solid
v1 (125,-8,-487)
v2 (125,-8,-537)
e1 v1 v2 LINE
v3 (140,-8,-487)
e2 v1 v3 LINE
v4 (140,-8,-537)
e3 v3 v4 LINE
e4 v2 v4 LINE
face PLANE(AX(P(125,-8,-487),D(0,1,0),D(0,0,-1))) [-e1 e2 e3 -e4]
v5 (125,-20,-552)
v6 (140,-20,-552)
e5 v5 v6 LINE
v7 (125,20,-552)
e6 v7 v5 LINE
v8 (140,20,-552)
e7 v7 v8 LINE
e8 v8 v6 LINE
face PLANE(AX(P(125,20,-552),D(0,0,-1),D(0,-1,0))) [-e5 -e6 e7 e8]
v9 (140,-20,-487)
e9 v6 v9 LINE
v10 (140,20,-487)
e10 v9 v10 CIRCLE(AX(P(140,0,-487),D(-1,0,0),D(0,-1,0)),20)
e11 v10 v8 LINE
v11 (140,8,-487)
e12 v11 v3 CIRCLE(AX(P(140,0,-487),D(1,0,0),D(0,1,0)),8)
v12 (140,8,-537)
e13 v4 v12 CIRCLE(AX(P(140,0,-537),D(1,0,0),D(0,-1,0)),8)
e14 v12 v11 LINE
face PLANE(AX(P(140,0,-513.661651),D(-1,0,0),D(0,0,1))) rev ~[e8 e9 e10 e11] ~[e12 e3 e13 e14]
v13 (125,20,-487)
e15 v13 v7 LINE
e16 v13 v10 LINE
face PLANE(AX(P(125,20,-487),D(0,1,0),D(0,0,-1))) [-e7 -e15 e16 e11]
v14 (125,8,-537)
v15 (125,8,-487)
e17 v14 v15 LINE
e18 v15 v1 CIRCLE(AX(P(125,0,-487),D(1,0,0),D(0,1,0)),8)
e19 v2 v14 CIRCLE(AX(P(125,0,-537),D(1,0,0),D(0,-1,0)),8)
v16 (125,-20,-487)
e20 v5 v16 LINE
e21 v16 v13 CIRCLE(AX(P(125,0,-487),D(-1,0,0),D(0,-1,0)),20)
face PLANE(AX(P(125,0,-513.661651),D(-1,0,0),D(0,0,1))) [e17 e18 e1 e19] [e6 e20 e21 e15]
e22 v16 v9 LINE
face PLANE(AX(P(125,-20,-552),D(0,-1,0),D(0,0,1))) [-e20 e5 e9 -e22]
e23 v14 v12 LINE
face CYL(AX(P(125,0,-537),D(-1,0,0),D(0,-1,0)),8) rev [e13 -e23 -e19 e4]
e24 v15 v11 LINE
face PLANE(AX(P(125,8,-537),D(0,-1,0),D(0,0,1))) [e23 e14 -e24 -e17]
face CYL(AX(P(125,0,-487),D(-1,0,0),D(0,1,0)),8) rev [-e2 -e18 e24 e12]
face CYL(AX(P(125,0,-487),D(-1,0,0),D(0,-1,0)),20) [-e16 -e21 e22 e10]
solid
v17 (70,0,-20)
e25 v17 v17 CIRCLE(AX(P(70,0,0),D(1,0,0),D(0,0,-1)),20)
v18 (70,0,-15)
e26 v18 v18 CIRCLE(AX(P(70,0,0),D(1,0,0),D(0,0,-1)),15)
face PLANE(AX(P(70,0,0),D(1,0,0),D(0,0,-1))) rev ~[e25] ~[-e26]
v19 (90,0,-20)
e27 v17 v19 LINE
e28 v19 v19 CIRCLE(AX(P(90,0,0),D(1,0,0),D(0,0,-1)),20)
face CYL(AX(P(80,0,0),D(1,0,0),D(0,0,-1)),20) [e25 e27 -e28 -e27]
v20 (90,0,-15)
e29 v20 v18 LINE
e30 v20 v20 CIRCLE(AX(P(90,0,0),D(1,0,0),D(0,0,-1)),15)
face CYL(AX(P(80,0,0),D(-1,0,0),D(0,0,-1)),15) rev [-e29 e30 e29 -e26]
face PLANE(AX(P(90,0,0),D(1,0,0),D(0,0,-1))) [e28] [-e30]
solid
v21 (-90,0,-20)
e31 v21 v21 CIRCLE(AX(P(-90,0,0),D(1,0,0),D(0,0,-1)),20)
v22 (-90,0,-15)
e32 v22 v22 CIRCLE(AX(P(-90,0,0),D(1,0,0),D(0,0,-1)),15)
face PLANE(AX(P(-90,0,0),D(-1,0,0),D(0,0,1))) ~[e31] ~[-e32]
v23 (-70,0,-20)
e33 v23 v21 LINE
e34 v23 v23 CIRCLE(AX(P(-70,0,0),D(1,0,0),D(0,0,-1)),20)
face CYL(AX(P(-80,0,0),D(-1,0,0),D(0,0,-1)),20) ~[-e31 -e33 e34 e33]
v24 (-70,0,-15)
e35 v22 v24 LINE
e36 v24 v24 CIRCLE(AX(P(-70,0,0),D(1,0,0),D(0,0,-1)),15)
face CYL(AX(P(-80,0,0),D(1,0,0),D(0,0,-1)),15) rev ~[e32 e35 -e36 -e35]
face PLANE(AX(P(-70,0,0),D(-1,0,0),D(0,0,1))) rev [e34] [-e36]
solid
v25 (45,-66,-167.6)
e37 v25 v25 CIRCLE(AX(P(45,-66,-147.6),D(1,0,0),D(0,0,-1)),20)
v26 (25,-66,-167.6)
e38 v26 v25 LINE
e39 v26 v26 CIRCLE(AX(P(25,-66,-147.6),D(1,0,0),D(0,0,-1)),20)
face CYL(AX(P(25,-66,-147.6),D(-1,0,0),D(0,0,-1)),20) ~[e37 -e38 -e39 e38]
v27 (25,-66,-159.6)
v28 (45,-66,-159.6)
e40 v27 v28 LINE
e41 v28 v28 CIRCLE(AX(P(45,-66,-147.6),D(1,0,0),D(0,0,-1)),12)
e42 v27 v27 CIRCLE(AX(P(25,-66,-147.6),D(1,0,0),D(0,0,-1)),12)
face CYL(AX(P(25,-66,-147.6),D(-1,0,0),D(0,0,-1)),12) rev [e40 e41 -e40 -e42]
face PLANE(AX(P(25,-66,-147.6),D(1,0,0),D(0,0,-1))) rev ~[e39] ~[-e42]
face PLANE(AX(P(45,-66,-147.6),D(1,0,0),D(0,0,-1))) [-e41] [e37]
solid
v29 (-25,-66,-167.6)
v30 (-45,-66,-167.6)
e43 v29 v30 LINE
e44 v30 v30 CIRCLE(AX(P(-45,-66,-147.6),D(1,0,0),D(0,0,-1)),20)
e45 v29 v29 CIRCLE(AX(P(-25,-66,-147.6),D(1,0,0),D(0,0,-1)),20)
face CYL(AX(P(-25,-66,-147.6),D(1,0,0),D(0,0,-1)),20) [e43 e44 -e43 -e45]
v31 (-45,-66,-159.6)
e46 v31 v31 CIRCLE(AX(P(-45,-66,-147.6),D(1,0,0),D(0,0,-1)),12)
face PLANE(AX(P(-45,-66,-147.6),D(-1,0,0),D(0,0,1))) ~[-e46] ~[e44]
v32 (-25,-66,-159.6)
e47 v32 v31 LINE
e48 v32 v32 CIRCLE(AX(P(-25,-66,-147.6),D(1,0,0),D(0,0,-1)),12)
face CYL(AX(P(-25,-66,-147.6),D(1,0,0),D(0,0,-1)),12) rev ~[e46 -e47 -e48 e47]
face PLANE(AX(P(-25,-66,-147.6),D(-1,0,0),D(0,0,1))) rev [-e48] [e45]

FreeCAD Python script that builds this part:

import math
import FreeCAD as App
import Part
import Sketcher
from FreeCAD import Vector

doc = App.newDocument("Part")
body = doc.addObject("PartDesign::Body", "Body")

# Sketch on YZ plane
sketch1 = body.newObject("Sketcher::SketchObject", "Sketch")
sketch1.AttachmentSupport = (doc.getObject("YZ_Plane"), [""])
sketch1.MapMode = "FlatFace"
sketch1.AttachmentOffset = App.Placement(Vector(0, 0, 80), App.Rotation())
sketch1.addGeometry(Part.Circle(Vector(0, 0, 0), Vector(0, 0, 1), 20), False)
sketch1.addGeometry(Part.Circle(Vector(0, 0, 0), Vector(0, 0, 1), 15), False)
sketch1.addConstraint(Sketcher.Constraint("Coincident", 0, 3, -1, 1))
sketch1.addConstraint(Sketcher.Constraint("Coincident", 1, 3, -1, 1))
sketch1.addConstraint(Sketcher.Constraint("Diameter", 0, 40.0))
sketch1.addConstraint(Sketcher.Constraint("Diameter", 1, 30.0))
pad1 = body.newObject("PartDesign::Pad", "Pad")
pad1.Profile = sketch1
pad1.Length = 20
pad1.Midplane = True
body2 = doc.addObject("PartDesign::Body", "Body001")

# Sketch on YZ plane
sketch2 = body2.newObject("Sketcher::SketchObject", "Sketch001")
sketch2.AttachmentSupport = (doc.getObject("YZ_Plane001"), [""])
sketch2.MapMode = "FlatFace"
sketch2.AttachmentOffset = App.Placement(Vector(0, 0, 25), App.Rotation())
sketch2.addGeometry(Part.Circle(Vector(-66, -148, 0), Vector(0, 0, 1), 20), False)
sketch2.addGeometry(Part.Circle(Vector(-66, -148, 0), Vector(0, 0, 1), 12), False)
sketch2.addConstraint(Sketcher.Constraint("Coincident", 1, 3, 0, 3))
sketch2.addConstraint(Sketcher.Constraint("Diameter", 0, 40.0))
sketch2.addConstraint(Sketcher.Constraint("Diameter", 1, 24.0))
sketch2.addConstraint(Sketcher.Constraint("DistanceX", 0, 3, -1, 1, 66.0))
sketch2.addConstraint(Sketcher.Constraint("DistanceY", 0, 3, -1, 1, 147.6))
pad2 = body2.newObject("PartDesign::Pad", "Pad001")
pad2.Profile = sketch2
pad2.Length = 20
body3 = doc.addObject("PartDesign::Body", "Body002")

# Sketch on YZ plane
sketch3 = body3.newObject("Sketcher::SketchObject", "Sketch002")
sketch3.AttachmentSupport = (doc.getObject("YZ_Plane002"), [""])
sketch3.MapMode = "FlatFace"
sketch3.AttachmentOffset = App.Placement(Vector(0, 0, 125), App.Rotation())
sketch3.addGeometry(Part.LineSegment(Vector(20, -552, 0), Vector(20, -487, 0)), False)
sketch3.addGeometry(Part.ArcOfCircle(Part.Circle(Vector(0, -487, 0), Vector(0, 0, 1), 20), math.radians(0), math.radians(180)), False)
sketch3.addGeometry(Part.LineSegment(Vector(-20, -487, 0), Vector(-20, -552, 0)), False)
sketch3.addGeometry(Part.LineSegment(Vector(-20, -552, 0), Vector(20, -552, 0)), False)
sketch3.addGeometry(Part.ArcOfCircle(Part.Circle(Vector(0, -537, 0), Vector(0, 0, 1), 8), math.radians(180), math.radians(360)), False)
sketch3.addGeometry(Part.LineSegment(Vector(-8, -537, 0), Vector(-8, -487, 0)), False)
sketch3.addGeometry(Part.ArcOfCircle(Part.Circle(Vector(0, -487, 0), Vector(0, 0, 1), 8), math.radians(0), math.radians(180)), False)
sketch3.addGeometry(Part.LineSegment(Vector(8, -487, 0), Vector(8, -537, 0)), False)
sketch3.addConstraint(Sketcher.Constraint("Tangent", 0, 2, 1, 1))
sketch3.addConstraint(Sketcher.Constraint("Tangent", 1, 2, 2, 1))
sketch3.addConstraint(Sketcher.Constraint("Coincident", 2, 2, 3, 1))
sketch3.addConstraint(Sketcher.Constraint("Coincident", 3, 2, 0, 1))
sketch3.addConstraint(Sketcher.Constraint("Tangent", 4, 1, 5, 1))
sketch3.addConstraint(Sketcher.Constraint("Tangent", 5, 2, 6, 2))
sketch3.addConstraint(Sketcher.Constraint("Tangent", 6, 1, 7, 1))
sketch3.addConstraint(Sketcher.Constraint("Tangent", 7, 2, 4, 2))
sketch3.addConstraint(Sketcher.Constraint("Vertical", 0))
sketch3.addConstraint(Sketcher.Constraint("Vertical", 2))
sketch3.addConstraint(Sketcher.Constraint("Horizontal", 3))
sketch3.addConstraint(Sketcher.Constraint("Vertical", 5))
sketch3.addConstraint(Sketcher.Constraint("Vertical", 7))
sketch3.addConstraint(Sketcher.Constraint("Coincident", 6, 3, 1, 3))
sketch3.addConstraint(Sketcher.Constraint("PointOnObject", 1, 3, -2))
sketch3.addConstraint(Sketcher.Constraint("Radius", 1, 20.0))
sketch3.addConstraint(Sketcher.Constraint("Radius", 4, 8.0))
sketch3.addConstraint(Sketcher.Constraint("DistanceY", 0, 1, 0, 2, 65.0))
sketch3.addConstraint(Sketcher.Constraint("DistanceY", 5, 1, 5, 2, 50.0))
sketch3.addConstraint(Sketcher.Constraint("DistanceY", 1, 3, -1, 1, 487.0))
pad3 = body3.newObject("PartDesign::Pad", "Pad002")
pad3.Profile = sketch3
pad3.Length = 15
body4 = doc.addObject("PartDesign::Body", "Body003")
doc.recompute()

mirroring = doc.addObject("Part::Mirroring", "Mirroring")
mirroring.Source = body
mirroring.Base = Vector(0, 0, 0)
mirroring.Normal = Vector(1, 0, 0)
body4.BaseFeature = mirroring
doc.recompute()
body5 = doc.addObject("PartDesign::Body", "Body004")
doc.recompute()

mirroring2 = doc.addObject("Part::Mirroring", "Mirroring001")
mirroring2.Source = body2
mirroring2.Base = Vector(0, 0, 0)
mirroring2.Normal = Vector(1, 0, 0)
body5.BaseFeature = mirroring2
doc.recompute()
mirroring.Visibility = False
mirroring2.Visibility = False

doc.recompute()
